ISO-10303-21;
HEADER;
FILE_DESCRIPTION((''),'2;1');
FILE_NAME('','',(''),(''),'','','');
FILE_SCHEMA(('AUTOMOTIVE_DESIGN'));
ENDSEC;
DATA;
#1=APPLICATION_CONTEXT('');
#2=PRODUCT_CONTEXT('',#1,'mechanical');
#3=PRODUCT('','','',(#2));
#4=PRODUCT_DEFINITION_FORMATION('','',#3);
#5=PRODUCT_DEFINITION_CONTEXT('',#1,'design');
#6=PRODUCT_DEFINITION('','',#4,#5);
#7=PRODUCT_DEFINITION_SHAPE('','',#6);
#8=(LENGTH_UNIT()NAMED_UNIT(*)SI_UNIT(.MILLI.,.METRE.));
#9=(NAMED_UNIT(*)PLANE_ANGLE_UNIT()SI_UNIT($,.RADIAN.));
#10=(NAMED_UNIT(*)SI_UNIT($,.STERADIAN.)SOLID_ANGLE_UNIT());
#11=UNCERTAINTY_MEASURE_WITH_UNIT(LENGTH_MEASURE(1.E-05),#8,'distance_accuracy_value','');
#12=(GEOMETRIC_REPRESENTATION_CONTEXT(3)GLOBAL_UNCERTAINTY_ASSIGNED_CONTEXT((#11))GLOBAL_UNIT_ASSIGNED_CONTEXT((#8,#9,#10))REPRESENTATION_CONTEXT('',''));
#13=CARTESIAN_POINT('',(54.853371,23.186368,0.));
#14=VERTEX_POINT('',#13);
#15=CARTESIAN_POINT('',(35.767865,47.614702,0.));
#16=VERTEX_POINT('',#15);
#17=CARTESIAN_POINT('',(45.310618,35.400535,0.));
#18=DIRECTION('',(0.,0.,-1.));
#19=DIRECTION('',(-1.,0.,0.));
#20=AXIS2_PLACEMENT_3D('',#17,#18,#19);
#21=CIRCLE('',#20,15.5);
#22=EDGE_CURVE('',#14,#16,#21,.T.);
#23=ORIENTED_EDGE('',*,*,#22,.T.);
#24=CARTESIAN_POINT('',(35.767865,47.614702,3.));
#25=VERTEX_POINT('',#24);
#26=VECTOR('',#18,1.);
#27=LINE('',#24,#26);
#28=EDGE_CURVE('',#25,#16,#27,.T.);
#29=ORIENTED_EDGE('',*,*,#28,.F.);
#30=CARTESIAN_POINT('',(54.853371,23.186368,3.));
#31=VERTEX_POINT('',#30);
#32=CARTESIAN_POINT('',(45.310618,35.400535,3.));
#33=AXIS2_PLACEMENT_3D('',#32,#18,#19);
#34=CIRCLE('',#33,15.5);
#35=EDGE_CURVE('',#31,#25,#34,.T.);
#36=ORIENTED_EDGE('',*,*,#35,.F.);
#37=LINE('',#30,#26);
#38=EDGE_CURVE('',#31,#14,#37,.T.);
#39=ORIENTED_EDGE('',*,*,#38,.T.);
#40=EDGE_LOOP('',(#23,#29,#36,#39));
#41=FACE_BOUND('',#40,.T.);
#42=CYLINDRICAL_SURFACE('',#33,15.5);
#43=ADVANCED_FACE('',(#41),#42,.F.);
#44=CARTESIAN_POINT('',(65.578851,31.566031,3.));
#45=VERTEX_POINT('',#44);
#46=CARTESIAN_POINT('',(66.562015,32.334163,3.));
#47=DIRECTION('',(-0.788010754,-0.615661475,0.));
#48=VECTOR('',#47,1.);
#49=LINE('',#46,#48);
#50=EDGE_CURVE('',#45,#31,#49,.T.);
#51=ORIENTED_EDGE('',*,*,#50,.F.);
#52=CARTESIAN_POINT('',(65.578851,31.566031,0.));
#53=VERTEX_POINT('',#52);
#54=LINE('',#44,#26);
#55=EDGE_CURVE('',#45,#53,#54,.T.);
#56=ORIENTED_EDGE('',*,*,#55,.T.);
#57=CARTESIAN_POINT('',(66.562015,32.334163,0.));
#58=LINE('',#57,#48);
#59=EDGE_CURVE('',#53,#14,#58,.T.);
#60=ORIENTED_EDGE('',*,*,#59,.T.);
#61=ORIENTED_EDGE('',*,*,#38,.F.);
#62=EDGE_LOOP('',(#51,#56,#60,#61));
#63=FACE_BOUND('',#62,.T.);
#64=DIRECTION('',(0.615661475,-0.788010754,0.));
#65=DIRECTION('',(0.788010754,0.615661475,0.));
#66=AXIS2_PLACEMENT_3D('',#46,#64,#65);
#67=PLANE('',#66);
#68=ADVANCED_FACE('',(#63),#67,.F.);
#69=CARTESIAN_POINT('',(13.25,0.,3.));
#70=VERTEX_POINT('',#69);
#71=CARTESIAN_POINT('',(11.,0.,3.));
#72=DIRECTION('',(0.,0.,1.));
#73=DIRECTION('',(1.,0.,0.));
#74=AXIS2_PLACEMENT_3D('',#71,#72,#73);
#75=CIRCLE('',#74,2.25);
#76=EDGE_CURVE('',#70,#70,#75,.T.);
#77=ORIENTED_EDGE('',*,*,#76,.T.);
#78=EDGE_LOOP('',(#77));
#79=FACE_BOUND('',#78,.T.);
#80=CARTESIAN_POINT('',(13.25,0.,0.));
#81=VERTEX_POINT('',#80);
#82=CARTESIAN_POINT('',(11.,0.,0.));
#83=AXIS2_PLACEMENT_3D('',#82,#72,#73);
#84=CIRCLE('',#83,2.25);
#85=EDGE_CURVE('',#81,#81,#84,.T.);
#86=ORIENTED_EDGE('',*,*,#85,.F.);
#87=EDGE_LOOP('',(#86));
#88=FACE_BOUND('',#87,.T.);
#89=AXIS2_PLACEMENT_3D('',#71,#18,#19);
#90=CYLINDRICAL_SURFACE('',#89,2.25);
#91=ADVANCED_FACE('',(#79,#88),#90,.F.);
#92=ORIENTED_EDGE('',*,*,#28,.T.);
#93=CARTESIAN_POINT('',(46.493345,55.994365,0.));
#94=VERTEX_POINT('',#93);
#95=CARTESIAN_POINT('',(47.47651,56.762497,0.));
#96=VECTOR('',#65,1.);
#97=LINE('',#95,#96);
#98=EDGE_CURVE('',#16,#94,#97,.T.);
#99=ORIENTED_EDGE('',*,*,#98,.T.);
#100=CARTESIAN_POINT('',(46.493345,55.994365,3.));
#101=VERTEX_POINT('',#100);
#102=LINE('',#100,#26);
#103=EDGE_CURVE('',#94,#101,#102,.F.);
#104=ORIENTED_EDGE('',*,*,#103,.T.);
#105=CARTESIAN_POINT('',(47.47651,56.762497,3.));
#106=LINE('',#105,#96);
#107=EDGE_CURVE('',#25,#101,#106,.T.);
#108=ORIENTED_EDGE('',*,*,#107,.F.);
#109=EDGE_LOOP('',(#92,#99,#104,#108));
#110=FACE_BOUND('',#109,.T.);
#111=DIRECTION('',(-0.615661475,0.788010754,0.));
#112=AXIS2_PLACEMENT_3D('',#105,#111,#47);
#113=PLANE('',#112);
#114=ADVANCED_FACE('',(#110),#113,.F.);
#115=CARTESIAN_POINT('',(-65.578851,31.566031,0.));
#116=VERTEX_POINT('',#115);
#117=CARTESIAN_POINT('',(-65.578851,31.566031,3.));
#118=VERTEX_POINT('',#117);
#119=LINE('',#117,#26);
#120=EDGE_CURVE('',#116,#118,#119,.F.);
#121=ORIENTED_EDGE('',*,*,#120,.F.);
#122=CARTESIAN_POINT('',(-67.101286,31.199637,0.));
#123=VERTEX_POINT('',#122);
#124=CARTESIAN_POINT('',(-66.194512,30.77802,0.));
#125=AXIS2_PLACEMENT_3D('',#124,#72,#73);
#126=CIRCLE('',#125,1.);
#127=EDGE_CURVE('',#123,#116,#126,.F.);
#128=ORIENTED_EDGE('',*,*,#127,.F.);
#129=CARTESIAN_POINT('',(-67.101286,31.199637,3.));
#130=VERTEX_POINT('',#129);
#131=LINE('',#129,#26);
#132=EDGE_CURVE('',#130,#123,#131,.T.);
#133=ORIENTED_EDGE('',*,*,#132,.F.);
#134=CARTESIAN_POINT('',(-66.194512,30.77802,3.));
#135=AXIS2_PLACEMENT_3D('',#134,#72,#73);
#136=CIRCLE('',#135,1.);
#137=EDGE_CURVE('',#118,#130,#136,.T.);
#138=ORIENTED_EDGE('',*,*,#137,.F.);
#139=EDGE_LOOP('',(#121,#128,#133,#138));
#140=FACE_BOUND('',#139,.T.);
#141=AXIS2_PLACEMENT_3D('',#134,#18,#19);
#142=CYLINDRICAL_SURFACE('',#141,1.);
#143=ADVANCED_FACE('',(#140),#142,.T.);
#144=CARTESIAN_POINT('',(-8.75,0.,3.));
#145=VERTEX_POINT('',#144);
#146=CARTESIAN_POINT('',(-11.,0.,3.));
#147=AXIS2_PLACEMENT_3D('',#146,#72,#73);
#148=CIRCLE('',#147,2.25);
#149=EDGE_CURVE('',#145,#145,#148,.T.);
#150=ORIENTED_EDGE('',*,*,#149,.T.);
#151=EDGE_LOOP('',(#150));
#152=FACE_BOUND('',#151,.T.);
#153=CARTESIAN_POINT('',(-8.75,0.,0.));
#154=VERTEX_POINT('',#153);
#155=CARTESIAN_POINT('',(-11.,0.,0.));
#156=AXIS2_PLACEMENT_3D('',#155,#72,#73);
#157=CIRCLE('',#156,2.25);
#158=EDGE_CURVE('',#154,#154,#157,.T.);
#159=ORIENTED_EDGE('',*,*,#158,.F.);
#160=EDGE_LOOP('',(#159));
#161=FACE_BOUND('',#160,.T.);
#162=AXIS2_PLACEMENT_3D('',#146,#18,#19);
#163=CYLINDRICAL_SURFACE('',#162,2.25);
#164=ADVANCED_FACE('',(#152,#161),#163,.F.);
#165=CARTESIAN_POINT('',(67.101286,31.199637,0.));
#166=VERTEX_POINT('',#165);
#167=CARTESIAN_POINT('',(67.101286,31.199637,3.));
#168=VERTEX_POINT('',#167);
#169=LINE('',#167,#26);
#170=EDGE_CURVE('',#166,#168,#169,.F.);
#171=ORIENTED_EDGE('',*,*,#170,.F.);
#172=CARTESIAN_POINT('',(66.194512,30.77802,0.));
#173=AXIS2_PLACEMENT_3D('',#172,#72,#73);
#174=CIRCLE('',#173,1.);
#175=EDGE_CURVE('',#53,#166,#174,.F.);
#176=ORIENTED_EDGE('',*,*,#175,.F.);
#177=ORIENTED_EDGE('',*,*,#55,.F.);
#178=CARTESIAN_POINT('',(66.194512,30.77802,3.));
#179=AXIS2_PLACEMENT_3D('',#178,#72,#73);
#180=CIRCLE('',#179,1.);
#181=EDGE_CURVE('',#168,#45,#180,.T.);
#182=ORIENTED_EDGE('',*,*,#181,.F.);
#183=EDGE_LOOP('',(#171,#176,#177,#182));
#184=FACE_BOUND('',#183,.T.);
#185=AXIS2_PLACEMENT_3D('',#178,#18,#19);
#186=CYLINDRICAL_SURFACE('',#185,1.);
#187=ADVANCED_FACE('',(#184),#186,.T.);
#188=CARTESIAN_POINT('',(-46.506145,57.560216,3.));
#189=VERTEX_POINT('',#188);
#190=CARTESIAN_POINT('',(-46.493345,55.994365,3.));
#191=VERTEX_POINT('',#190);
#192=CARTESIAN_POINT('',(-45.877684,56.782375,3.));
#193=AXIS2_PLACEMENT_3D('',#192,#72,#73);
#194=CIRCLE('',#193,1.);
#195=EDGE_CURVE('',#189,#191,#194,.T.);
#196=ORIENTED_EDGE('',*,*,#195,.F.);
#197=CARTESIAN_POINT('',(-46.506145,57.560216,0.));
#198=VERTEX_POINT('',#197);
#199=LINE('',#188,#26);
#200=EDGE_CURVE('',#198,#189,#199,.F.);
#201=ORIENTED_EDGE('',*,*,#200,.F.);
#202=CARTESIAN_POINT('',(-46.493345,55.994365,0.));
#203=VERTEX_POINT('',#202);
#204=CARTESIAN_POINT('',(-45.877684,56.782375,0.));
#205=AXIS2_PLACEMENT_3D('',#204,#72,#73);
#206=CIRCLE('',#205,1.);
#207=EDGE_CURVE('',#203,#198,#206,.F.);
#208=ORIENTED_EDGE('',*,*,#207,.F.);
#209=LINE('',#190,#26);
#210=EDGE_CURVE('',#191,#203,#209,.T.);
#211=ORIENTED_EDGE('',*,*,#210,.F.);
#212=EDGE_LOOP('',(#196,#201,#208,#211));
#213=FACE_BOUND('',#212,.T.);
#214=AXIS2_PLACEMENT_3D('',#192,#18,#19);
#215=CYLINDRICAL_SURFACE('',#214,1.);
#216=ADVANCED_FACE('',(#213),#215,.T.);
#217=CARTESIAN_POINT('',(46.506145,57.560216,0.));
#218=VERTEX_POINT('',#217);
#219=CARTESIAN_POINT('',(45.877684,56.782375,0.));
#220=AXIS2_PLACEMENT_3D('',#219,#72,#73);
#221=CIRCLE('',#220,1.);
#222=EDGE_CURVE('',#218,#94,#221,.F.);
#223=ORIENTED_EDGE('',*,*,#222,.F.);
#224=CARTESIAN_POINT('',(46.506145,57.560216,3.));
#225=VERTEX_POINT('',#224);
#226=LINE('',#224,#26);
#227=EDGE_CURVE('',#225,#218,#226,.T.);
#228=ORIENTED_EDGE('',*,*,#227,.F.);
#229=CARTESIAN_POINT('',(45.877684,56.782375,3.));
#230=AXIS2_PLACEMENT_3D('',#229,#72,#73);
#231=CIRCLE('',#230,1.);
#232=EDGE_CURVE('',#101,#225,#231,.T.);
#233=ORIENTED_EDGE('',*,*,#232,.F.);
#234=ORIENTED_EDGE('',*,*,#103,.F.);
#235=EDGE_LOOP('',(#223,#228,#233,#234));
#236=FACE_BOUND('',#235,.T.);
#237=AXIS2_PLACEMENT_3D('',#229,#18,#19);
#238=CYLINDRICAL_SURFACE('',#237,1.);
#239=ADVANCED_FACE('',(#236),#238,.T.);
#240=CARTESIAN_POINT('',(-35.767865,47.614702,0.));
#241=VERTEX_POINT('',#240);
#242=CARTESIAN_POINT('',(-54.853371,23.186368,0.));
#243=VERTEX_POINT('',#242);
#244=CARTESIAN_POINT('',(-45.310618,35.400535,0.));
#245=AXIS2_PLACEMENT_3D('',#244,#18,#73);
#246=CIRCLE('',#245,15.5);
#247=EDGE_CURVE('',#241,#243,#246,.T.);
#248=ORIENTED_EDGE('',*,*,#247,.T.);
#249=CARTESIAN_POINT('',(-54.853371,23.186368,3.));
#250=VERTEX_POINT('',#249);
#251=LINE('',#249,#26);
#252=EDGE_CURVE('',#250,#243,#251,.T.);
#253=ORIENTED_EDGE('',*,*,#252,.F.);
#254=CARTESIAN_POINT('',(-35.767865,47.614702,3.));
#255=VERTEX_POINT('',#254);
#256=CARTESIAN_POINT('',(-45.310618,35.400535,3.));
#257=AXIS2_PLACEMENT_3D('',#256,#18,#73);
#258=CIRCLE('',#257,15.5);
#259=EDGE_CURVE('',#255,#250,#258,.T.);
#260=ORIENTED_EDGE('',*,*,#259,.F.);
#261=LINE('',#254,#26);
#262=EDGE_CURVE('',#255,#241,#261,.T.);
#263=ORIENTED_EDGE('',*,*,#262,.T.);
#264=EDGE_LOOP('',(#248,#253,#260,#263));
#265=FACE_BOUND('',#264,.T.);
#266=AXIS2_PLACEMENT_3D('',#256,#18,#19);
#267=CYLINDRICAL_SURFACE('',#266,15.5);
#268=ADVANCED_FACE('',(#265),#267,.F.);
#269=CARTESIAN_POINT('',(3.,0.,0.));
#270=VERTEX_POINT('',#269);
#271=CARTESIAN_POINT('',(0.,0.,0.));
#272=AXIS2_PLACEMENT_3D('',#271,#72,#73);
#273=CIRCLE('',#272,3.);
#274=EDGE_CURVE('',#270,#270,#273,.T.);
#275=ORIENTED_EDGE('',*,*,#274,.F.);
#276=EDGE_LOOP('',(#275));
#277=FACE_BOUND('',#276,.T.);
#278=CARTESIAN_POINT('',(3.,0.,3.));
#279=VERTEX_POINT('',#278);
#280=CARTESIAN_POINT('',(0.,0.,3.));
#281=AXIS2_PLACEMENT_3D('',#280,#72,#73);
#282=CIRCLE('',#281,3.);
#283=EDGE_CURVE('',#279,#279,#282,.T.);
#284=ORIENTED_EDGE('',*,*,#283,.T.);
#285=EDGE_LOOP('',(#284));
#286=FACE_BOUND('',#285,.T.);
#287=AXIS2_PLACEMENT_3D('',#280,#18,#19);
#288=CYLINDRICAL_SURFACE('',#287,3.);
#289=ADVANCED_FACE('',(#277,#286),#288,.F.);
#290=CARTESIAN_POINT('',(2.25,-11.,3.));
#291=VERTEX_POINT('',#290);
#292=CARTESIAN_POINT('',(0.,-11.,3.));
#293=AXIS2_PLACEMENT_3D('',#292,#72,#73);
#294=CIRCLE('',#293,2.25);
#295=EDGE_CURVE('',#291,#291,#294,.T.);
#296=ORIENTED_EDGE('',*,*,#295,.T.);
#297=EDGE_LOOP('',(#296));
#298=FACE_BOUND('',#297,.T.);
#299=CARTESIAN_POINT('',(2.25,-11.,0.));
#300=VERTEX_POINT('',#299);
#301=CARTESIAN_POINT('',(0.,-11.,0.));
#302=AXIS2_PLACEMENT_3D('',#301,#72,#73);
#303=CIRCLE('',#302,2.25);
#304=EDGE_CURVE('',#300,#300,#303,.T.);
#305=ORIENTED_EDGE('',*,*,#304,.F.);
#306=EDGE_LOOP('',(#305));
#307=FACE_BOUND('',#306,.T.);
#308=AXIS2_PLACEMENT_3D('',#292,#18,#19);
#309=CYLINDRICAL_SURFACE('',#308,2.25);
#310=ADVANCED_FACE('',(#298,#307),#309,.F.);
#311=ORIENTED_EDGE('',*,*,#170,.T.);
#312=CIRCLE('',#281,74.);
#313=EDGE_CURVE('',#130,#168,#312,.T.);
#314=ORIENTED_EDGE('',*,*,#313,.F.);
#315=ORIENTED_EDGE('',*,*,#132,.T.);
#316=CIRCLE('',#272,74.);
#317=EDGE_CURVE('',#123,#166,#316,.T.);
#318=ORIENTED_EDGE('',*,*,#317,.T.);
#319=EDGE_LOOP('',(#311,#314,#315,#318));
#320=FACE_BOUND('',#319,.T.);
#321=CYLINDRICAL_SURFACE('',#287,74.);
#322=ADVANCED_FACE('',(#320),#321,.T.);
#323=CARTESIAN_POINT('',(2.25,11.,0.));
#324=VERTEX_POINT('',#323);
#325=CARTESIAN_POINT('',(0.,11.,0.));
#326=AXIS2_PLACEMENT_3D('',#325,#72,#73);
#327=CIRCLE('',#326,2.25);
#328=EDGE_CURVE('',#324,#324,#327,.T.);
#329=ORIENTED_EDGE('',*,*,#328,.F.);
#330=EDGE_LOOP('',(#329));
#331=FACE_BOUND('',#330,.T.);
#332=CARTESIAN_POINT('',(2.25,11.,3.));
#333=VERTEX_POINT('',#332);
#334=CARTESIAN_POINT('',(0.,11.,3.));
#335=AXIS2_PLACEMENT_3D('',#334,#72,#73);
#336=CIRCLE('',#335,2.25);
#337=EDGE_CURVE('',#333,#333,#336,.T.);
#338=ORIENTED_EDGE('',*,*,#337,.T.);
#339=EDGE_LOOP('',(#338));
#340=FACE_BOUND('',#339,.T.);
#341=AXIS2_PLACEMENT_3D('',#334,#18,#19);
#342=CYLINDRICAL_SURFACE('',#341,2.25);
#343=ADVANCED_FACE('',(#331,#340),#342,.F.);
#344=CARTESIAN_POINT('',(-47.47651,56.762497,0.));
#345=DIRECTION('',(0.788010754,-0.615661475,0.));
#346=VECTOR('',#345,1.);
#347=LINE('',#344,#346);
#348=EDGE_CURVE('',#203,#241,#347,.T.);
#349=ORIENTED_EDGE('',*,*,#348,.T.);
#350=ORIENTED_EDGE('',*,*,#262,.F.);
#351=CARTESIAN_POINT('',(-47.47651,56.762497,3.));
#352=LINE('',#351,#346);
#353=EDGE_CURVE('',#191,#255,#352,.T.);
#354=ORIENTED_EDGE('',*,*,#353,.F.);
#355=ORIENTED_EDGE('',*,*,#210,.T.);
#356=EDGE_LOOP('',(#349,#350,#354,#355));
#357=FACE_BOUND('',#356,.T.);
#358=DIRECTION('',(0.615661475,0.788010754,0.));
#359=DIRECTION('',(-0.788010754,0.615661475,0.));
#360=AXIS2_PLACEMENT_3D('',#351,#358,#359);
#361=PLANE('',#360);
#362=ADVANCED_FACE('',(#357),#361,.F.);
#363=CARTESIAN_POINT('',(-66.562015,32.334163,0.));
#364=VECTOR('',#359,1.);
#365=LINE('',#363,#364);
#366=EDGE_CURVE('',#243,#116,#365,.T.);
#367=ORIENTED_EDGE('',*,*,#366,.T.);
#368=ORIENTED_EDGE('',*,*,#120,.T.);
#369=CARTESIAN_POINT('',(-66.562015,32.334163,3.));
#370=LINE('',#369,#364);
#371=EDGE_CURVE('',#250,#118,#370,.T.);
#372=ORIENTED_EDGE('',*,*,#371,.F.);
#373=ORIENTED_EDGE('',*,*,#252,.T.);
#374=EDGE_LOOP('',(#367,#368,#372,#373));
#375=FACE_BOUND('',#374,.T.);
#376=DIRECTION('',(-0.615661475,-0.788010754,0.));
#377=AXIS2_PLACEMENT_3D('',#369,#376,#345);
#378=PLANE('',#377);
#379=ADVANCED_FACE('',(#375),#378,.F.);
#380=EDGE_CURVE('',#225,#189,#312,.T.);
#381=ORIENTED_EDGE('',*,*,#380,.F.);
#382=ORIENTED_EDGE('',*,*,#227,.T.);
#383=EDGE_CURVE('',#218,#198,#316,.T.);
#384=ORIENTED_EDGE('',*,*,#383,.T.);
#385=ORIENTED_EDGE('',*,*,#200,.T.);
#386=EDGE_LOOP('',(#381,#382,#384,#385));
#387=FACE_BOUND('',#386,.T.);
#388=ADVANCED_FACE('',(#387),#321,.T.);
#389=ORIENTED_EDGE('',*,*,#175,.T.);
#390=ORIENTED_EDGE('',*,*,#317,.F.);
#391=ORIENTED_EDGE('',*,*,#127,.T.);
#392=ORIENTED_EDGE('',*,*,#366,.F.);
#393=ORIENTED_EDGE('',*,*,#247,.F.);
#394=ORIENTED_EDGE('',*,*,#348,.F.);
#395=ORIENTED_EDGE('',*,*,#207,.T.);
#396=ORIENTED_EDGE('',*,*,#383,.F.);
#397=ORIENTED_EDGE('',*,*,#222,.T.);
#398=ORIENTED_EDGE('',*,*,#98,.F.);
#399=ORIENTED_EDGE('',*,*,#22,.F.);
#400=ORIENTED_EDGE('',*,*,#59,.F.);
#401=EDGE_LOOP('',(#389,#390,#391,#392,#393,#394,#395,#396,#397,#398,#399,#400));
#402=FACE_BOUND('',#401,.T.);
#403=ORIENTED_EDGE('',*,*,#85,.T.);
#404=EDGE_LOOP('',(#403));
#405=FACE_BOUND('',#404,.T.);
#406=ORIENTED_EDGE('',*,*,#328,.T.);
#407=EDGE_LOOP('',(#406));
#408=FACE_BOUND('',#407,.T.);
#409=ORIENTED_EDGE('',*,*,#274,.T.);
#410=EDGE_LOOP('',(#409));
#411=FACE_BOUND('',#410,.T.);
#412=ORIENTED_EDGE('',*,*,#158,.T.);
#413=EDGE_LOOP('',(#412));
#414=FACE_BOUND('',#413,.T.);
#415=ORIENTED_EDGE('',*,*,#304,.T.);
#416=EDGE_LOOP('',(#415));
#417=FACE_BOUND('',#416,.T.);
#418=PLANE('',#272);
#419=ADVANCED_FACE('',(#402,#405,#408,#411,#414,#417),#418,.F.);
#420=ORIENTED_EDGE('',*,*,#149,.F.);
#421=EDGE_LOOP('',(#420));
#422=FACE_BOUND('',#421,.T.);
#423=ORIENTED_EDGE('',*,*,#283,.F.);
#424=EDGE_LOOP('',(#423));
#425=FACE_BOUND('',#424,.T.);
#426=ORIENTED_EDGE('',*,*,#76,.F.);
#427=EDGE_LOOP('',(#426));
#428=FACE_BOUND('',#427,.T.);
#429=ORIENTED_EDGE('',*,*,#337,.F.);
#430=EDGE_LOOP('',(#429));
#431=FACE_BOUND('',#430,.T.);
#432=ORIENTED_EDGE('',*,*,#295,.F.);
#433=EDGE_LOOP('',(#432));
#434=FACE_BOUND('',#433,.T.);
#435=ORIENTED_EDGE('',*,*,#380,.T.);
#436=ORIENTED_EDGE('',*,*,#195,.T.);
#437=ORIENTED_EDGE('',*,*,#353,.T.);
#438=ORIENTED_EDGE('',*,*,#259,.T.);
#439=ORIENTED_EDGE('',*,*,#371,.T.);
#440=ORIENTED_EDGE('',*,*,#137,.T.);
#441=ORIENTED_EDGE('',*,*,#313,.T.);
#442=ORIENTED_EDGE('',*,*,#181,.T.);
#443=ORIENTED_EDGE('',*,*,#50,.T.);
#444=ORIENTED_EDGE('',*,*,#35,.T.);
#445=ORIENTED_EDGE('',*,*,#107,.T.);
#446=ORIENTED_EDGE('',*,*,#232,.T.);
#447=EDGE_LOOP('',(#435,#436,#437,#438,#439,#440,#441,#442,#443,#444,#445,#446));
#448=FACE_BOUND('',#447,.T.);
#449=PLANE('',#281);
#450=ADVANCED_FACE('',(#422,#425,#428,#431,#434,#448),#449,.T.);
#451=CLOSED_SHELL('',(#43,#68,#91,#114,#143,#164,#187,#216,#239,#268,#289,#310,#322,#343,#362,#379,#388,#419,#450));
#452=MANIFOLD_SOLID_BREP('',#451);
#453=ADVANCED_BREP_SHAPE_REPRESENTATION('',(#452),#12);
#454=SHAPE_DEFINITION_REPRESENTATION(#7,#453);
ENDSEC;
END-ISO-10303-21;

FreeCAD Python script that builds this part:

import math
import FreeCAD as App
import Part
import Sketcher

V = App.Vector
Q = App.Units.Quantity


def edges_at(feature, points):
    """Names of the edges that pass closest to the given points."""
    edges = feature.Shape.Edges
    near = lambda p: min(range(len(edges)), key=lambda i: edges[i].distToShape(Part.Vertex(*p))[0])
    return sorted({f"Edge{near(p) + 1}" for p in points})

doc = App.newDocument("Part")
body = doc.addObject("PartDesign::Body", "Body")

sketch1 = body.newObject("Sketcher::SketchObject", "Sketch")
sketch1.AttachmentSupport = (doc.getObject("XY_Plane"), [""])
sketch1.MapMode = "FlatFace"
sketch1.addGeometry([
    Part.LineSegment(V(66.562015, 32.334163, 0), V(54.853371, 23.186368, 0)),
    Part.ArcOfCircle(Part.Circle(V(45.310618, 35.400535, 0), V(0, 0, 1), 15.5), math.radians(128), math.radians(308)),
    Part.LineSegment(V(35.767865, 47.614702, 0), V(47.47651, 56.762497, 0)),
    Part.ArcOfCircle(Part.Circle(V(0, 0, 0), V(0, 0, 1), 74), math.radians(50.090677), math.radians(129.909323)),
    Part.LineSegment(V(-47.47651, 56.762497, 0), V(-35.767865, 47.614702, 0)),
    Part.ArcOfCircle(Part.Circle(V(-45.310618, 35.400535, 0), V(0, 0, 1), 15.5), math.radians(-128), math.radians(52)),
    Part.LineSegment(V(-54.853371, 23.186368, 0), V(-66.562015, 32.334163, 0)),
    Part.ArcOfCircle(Part.Circle(V(0, 0, 0), V(0, 0, 1), 74), math.radians(154.090677), math.radians(385.909323)),
    Part.Circle(V(-11, 0, 0), V(0, 0, 1), 2.25),
    Part.Circle(V(0, -11, 0), V(0, 0, 1), 2.25),
    Part.Circle(V(0, 0, 0), V(0, 0, 1), 3),
    Part.Circle(V(11, 0, 0), V(0, 0, 1), 2.25),
    Part.Circle(V(0, 11, 0), V(0, 0, 1), 2.25),
], False)
sketch1.addConstraint([
    Sketcher.Constraint("Tangent", 0, 2, 1, 2),
    Sketcher.Constraint("Tangent", 1, 1, 2, 1),
    Sketcher.Constraint("Coincident", 2, 2, 3, 1),
    Sketcher.Constraint("Coincident", 3, 2, 4, 1),
    Sketcher.Constraint("Tangent", 4, 2, 5, 2),
    Sketcher.Constraint("Tangent", 5, 1, 6, 1),
    Sketcher.Constraint("Coincident", 6, 2, 7, 1),
    Sketcher.Constraint("Coincident", 7, 2, 0, 1),
    Sketcher.Constraint("Coincident", 3, 3, -1, 1),
    Sketcher.Constraint("Coincident", 7, 3, -1, 1),
    Sketcher.Constraint("Coincident", 10, 3, -1, 1),
    Sketcher.Constraint("Equal", 1, 5),
    Sketcher.Constraint("Equal", 3, 7),
    Sketcher.Constraint("Equal", 8, 9),
    Sketcher.Constraint("Equal", 9, 11),
    Sketcher.Constraint("Equal", 11, 12),
    Sketcher.Constraint("Symmetric", 8, 3, 11, 3, -1, 1),
    Sketcher.Constraint("Symmetric", 9, 3, 12, 3, -1, 1),
    Sketcher.Constraint("Symmetric", 1, 3, 5, 3, -2),
    Sketcher.Constraint("PointOnObject", 8, 3, -1),
    Sketcher.Constraint("PointOnObject", 9, 3, -2),
    Sketcher.Constraint("Parallel", 0, 2),
    Sketcher.Constraint("Parallel", 4, 6),
    Sketcher.Constraint("Horizontal", 2, 2, 3, 2),
    Sketcher.Constraint("Equal", 0, 2),
    Sketcher.Constraint("Diameter", 10, 6.0),
    Sketcher.Constraint("Radius", 3, 74.0),
    Sketcher.Constraint("Diameter", 8, 4.5),
    Sketcher.Constraint("Radius", 1, 15.5),
    Sketcher.Constraint("Angle", 0, Q("-142 deg")),
    Sketcher.Constraint("DistanceX", 8, 3, -1, 1, 11.0),
    Sketcher.Constraint("DistanceY", 9, 3, -1, 1, 11.0),
    Sketcher.Constraint("DistanceY", -1, 1, 1, 1, 47.614702),
])
pad1 = body.newObject("PartDesign::Pad", "Pad")
pad1.Profile = sketch1
pad1.Length = 3
doc.recompute()

fillet = body.newObject("PartDesign::Fillet", "Fillet")
fillet.Base = (pad1, edges_at(pad1, [
    (-66.562, 32.334, 1.5),
    (-47.477, 56.762, 1.5),
    (47.477, 56.762, 1.5),
    (66.562, 32.334, 1.5),
]))
fillet.Radius = 1

doc.recompute()
